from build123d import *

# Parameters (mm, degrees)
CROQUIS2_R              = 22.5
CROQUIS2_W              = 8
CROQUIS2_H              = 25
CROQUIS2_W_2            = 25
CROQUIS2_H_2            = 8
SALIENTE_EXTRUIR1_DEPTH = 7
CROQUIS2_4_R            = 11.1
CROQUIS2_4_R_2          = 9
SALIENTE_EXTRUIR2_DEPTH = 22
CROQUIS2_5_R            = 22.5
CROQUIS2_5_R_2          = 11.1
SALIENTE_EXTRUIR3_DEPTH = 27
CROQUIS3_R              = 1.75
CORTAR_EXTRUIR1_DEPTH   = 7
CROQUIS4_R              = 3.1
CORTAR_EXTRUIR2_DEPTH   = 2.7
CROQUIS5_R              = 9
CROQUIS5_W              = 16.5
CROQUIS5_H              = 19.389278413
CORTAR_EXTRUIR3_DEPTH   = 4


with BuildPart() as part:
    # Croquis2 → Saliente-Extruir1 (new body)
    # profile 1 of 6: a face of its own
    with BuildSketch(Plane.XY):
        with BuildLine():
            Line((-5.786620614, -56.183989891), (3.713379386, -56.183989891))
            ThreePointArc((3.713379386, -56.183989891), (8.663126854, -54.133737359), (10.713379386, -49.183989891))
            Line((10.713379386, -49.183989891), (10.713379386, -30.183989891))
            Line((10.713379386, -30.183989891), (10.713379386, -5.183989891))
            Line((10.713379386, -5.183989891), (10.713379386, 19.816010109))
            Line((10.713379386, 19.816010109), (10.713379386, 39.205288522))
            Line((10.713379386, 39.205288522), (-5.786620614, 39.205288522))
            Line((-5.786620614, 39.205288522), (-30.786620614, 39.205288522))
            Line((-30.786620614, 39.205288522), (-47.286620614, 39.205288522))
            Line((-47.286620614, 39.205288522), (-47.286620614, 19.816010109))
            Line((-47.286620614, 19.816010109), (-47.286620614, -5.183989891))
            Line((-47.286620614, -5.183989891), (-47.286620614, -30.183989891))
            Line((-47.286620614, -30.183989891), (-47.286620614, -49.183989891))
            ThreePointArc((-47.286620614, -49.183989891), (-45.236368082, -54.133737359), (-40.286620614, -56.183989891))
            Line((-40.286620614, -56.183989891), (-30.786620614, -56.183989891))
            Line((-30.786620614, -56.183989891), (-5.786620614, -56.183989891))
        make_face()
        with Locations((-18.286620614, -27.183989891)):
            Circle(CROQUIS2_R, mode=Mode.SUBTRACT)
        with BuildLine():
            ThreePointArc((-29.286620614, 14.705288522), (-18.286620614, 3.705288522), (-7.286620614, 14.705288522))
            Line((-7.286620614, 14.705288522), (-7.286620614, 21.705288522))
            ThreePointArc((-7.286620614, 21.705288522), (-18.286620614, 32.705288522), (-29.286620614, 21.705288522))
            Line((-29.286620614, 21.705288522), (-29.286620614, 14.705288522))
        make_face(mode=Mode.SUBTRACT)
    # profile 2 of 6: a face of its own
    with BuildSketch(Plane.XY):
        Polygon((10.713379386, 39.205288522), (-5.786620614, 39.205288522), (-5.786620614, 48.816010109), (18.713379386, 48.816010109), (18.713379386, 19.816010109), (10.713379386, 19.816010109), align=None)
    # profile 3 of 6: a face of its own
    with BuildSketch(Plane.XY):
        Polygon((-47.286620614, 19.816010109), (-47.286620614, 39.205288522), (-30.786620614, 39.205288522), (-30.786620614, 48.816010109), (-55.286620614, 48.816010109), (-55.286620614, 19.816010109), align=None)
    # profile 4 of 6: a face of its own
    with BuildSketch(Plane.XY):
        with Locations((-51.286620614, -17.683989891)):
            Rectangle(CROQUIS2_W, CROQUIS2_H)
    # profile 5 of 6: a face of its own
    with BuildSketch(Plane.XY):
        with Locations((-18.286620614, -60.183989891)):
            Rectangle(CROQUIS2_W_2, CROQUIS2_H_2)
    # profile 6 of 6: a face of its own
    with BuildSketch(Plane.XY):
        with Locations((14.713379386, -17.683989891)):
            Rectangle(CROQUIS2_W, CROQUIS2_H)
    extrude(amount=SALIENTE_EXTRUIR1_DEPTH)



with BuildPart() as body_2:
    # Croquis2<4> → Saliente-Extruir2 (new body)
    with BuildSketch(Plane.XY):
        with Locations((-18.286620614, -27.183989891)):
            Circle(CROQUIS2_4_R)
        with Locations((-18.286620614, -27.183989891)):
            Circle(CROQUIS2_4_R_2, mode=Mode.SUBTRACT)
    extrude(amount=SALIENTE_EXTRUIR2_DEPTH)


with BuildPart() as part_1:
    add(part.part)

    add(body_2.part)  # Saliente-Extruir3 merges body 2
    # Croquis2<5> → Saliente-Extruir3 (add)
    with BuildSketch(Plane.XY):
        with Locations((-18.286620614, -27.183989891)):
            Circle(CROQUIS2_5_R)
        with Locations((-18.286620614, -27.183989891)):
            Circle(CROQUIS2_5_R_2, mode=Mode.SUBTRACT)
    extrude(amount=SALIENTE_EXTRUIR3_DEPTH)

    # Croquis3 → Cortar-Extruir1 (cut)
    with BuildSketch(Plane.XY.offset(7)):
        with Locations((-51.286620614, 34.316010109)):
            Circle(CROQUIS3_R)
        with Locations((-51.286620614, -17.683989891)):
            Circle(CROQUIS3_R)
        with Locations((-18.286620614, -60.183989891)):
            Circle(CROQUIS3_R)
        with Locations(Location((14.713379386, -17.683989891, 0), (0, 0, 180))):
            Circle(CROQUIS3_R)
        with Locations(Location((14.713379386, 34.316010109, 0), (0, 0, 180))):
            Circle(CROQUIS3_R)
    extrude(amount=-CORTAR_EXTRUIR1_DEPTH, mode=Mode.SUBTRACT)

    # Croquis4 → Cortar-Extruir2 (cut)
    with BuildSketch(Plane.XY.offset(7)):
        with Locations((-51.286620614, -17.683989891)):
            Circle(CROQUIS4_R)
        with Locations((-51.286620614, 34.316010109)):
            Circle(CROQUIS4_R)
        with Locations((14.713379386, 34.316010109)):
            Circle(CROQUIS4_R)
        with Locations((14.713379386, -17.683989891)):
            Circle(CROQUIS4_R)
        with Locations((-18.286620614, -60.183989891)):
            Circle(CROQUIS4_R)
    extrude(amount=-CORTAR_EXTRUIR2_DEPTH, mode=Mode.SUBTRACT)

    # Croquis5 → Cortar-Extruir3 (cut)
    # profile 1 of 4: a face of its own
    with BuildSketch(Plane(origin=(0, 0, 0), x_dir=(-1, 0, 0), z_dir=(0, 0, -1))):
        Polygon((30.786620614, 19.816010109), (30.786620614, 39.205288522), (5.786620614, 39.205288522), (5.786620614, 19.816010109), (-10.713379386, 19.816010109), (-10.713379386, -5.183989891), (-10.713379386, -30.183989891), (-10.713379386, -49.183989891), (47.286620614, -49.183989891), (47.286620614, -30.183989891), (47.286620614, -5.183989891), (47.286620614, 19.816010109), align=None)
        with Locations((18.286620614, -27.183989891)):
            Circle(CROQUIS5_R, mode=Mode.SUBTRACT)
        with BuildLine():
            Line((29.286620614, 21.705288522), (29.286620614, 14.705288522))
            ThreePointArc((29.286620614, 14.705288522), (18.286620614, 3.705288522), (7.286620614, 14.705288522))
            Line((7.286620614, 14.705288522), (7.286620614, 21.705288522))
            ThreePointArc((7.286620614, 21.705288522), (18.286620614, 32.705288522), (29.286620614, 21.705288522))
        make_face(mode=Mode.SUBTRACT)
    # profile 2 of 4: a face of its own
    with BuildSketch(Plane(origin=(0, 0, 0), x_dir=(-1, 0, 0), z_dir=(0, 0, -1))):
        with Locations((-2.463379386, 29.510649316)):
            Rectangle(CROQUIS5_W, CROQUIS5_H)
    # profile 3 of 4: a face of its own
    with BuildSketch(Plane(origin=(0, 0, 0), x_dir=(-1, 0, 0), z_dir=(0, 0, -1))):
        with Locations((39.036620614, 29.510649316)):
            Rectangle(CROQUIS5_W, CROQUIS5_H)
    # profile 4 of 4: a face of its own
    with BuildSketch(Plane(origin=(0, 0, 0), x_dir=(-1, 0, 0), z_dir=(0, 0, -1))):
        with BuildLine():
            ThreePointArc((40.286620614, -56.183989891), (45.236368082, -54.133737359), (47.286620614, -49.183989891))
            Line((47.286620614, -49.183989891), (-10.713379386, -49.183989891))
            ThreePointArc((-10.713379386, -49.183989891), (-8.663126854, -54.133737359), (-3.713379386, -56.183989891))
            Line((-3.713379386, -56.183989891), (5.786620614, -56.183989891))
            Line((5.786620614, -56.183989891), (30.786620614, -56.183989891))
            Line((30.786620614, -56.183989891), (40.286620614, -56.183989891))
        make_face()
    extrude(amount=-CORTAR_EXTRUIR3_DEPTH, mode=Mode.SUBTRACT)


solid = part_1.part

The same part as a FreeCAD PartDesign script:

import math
import FreeCAD as App
import Part
import Sketcher
from FreeCAD import Vector

doc = App.newDocument("Part")
params = doc.addObject("Spreadsheet::Sheet", "Params")
for row, (alias, value) in enumerate([
    ("sketch1_diameter", "45 mm"),
    ("sketch1_radius", "7 mm"),
    ("sketch1_radius2", "11 mm"),
    ("sketch1_width", "8 mm"),
    ("sketch1_width2", "25 mm"),
    ("pad1_length", "7 mm"),
    ("sketch2_diameter", "18 mm"),
    ("sketch2_diameter2", "22.2 mm"),
    ("pad2_length", "22 mm"),
    ("sketch3_diameter", "45 mm"),
    ("sketch3_diameter2", "22.2 mm"),
    ("pad3_length", "27 mm"),
    ("sketch4_diameter", "3.5 mm"),
    ("pocket1_length", "7 mm"),
    ("sketch5_diameter", "6.2 mm"),
    ("pocket2_length", "2.7 mm"),
    ("sketch6_diameter", "18 mm"),
    ("sketch6_radius", "7 mm"),
    ("sketch6_radius2", "11 mm"),
    ("sketch6_width", "44 mm"),
    ("sketch6_height", "7 mm"),
    ("pocket3_length", "4 mm"),
], start=1):
    params.set(f"A{row}", alias)
    params.set(f"B{row}", "=" + value)
    params.setAlias(f"B{row}", alias)

body = doc.addObject("PartDesign::Body", "Body")

sketch1 = doc.addObject("Sketcher::SketchObject", "Sketch")
body.addObject(sketch1)
sketch1.AttachmentSupport = (doc.XY_Plane, [""])
sketch1.MapMode = "FlatFace"
sketch1.addGeometry([
    Part.ArcOfCircle(Part.Circle(Vector(4, -49, 0), Vector(0, 0, 1), 7), math.radians(-90), math.radians(0)),
    Part.LineSegment(Vector(11, -49, 0), Vector(11, -30, 0)),
    Part.LineSegment(Vector(11, -30, 0), Vector(19, -30, 0)),
    Part.LineSegment(Vector(19, -30, 0), Vector(19, -5, 0)),
    Part.LineSegment(Vector(19, -5, 0), Vector(11, -5, 0)),
    Part.LineSegment(Vector(11, -5, 0), Vector(11, 20, 0)),
    Part.LineSegment(Vector(11, 20, 0), Vector(19, 20, 0)),
    Part.LineSegment(Vector(19, 20, 0), Vector(19, 49, 0)),
    Part.LineSegment(Vector(19, 49, 0), Vector(-6, 49, 0)),
    Part.LineSegment(Vector(-6, 49, 0), Vector(-6, 39, 0)),
    Part.LineSegment(Vector(-6, 39, 0), Vector(-31, 39, 0)),
    Part.LineSegment(Vector(-31, 39, 0), Vector(-31, 49, 0)),
    Part.LineSegment(Vector(-31, 49, 0), Vector(-55, 49, 0)),
    Part.LineSegment(Vector(-55, 49, 0), Vector(-55, 20, 0)),
    Part.LineSegment(Vector(-55, 20, 0), Vector(-47, 20, 0)),
    Part.LineSegment(Vector(-47, 20, 0), Vector(-47, -5, 0)),
    Part.LineSegment(Vector(-47, -5, 0), Vector(-55, -5, 0)),
    Part.LineSegment(Vector(-55, -5, 0), Vector(-55, -30, 0)),
    Part.LineSegment(Vector(-55, -30, 0), Vector(-47, -30, 0)),
    Part.LineSegment(Vector(-47, -30, 0), Vector(-47, -49, 0)),
    Part.ArcOfCircle(Part.Circle(Vector(-40, -49, 0), Vector(0, 0, 1), 7), math.radians(-180), math.radians(-90)),
    Part.LineSegment(Vector(-40, -56, 0), Vector(-31, -56, 0)),
    Part.LineSegment(Vector(-31, -56, 0), Vector(-31, -64, 0)),
    Part.LineSegment(Vector(-31, -64, 0), Vector(-6, -64, 0)),
    Part.LineSegment(Vector(-6, -64, 0), Vector(-6, -56, 0)),
    Part.LineSegment(Vector(-6, -56, 0), Vector(4, -56, 0)),
    Part.Circle(Vector(-18, -27, 0), Vector(0, 0, 1), 22),
    Part.ArcOfCircle(Part.Circle(Vector(-18, 15, 0), Vector(0, 0, 1), 11), math.radians(180), math.radians(360)),
    Part.LineSegment(Vector(-29, 15, 0), Vector(-29, 22, 0)),
    Part.ArcOfCircle(Part.Circle(Vector(-18, 22, 0), Vector(0, 0, 1), 11), math.radians(0), math.radians(180)),
    Part.LineSegment(Vector(-7, 22, 0), Vector(-7, 15, 0)),
], False)
sketch1.addConstraint([
    Sketcher.Constraint("Tangent", 0, 2, 1, 1),
    Sketcher.Constraint("Coincident", 1, 2, 2, 1),
    Sketcher.Constraint("Coincident", 2, 2, 3, 1),
    Sketcher.Constraint("Coincident", 3, 2, 4, 1),
    Sketcher.Constraint("Coincident", 4, 2, 5, 1),
    Sketcher.Constraint("Coincident", 5, 2, 6, 1),
    Sketcher.Constraint("Coincident", 6, 2, 7, 1),
    Sketcher.Constraint("Coincident", 7, 2, 8, 1),
    Sketcher.Constraint("Coincident", 8, 2, 9, 1),
    Sketcher.Constraint("Coincident", 9, 2, 10, 1),
    Sketcher.Constraint("Coincident", 10, 2, 11, 1),
    Sketcher.Constraint("Coincident", 11, 2, 12, 1),
    Sketcher.Constraint("Coincident", 12, 2, 13, 1),
    Sketcher.Constraint("Coincident", 13, 2, 14, 1),
    Sketcher.Constraint("Coincident", 14, 2, 15, 1),
    Sketcher.Constraint("Coincident", 15, 2, 16, 1),
    Sketcher.Constraint("Coincident", 16, 2, 17, 1),
    Sketcher.Constraint("Coincident", 17, 2, 18, 1),
    Sketcher.Constraint("Coincident", 18, 2, 19, 1),
    Sketcher.Constraint("Tangent", 19, 2, 20, 1),
    Sketcher.Constraint("Tangent", 20, 2, 21, 1),
    Sketcher.Constraint("Coincident", 21, 2, 22, 1),
    Sketcher.Constraint("Coincident", 22, 2, 23, 1),
    Sketcher.Constraint("Coincident", 23, 2, 24, 1),
    Sketcher.Constraint("Coincident", 24, 2, 25, 1),
    Sketcher.Constraint("Tangent", 25, 2, 0, 1),
    Sketcher.Constraint("Tangent", 27, 1, 28, 1),
    Sketcher.Constraint("Tangent", 28, 2, 29, 2),
    Sketcher.Constraint("Tangent", 29, 1, 30, 1),
    Sketcher.Constraint("Tangent", 30, 2, 27, 2),
    Sketcher.Constraint("Vertical", 1),
    Sketcher.Constraint("Horizontal", 2),
    Sketcher.Constraint("Vertical", 3),
    Sketcher.Constraint("Horizontal", 4),
    Sketcher.Constraint("Vertical", 5),
    Sketcher.Constraint("Horizontal", 6),
    Sketcher.Constraint("Vertical", 7),
    Sketcher.Constraint("Horizontal", 8),
    Sketcher.Constraint("Vertical", 9),
    Sketcher.Constraint("Horizontal", 10),
    Sketcher.Constraint("Vertical", 11),
    Sketcher.Constraint("Horizontal", 12),
    Sketcher.Constraint("Vertical", 13),
    Sketcher.Constraint("Horizontal", 14),
    Sketcher.Constraint("Vertical", 15),
    Sketcher.Constraint("Horizontal", 16),
    Sketcher.Constraint("Vertical", 17),
    Sketcher.Constraint("Horizontal", 18),
    Sketcher.Constraint("Vertical", 19),
    Sketcher.Constraint("Horizontal", 21),
    Sketcher.Constraint("Vertical", 22),
    Sketcher.Constraint("Horizontal", 23),
    Sketcher.Constraint("Vertical", 24),
    Sketcher.Constraint("Horizontal", 25),
    Sketcher.Constraint("Vertical", 28),
    Sketcher.Constraint("Vertical", 30),
    Sketcher.Constraint("Equal", 0, 20),
    Sketcher.Constraint("Horizontal", 0, 3, 20, 3),
    Sketcher.Constraint("Horizontal", 8, 2, 11, 2),
    Sketcher.Constraint("Horizontal", 6, 2, 13, 2),
    Sketcher.Constraint("Horizontal", 4, 2, 15, 2),
    Sketcher.Constraint("Horizontal", 2, 2, 17, 2),
    Sketcher.Constraint("Vertical", 26, 3, 27, 3),
    Sketcher.Constraint("Vertical", 1, 2, 4, 2),
    Sketcher.Constraint("Vertical", 3, 2, 6, 2),
    Sketcher.Constraint("Vertical", 13, 2, 16, 2),
    Sketcher.Constraint("Vertical", 15, 2, 18, 2),
    Sketcher.Constraint("Vertical", 11, 2, 21, 2),
    Sketcher.Constraint("Vertical", 9, 2, 23, 2),
    Sketcher.Constraint("Equal", 8, 12),
    Sketcher.Constraint("Equal", 6, 14),
    Sketcher.Constraint("Equal", 23, 3),
    Sketcher.Constraint("Equal", 3, 5),
    Sketcher.Constraint("Equal", 18, 22),
    Sketcher.Constraint("Diameter", 26, 45.0),
    Sketcher.Constraint("Radius", 0, 7.0),
    Sketcher.Constraint("Radius", 27, 11.0),
    Sketcher.Constraint("DistanceX", 2, 1, 2, 2, 8.0),
    Sketcher.Constraint("DistanceX", 10, 2, 10, 1, 25.0),
    Sketcher.Constraint("DistanceY", 1, 1, 1, 2, 19.0),
    Sketcher.Constraint("DistanceY", 7, 1, 7, 2, 29.0),
    Sketcher.Constraint("DistanceY", 28, 1, 28, 2, 7.0),
    Sketcher.Constraint("DistanceX", 8, 2, 8, 1, 24.5),
    Sketcher.Constraint("DistanceX", 26, 3, 0, 3, 22.0),
    Sketcher.Constraint("DistanceY", 0, 3, 26, 3, 22.0),
    Sketcher.Constraint("DistanceY", 29, 3, 9, 2, 17.5),
    Sketcher.Constraint("DistanceY", 9, 2, 9, 1, 9.610722),
    Sketcher.Constraint("DistanceX", -1, 1, 0, 3, 3.713379),
    Sketcher.Constraint("DistanceY", 0, 3, -1, 1, 49.18399),
])
sketch1.setExpression("Constraints[74]", "Params.sketch1_diameter")
sketch1.setExpression("Constraints[75]", "Params.sketch1_radius")
sketch1.setExpression("Constraints[76]", "Params.sketch1_radius2")
sketch1.setExpression("Constraints[77]", "Params.sketch1_width")
sketch1.setExpression("Constraints[78]", "Params.sketch1_width2")
pad1 = doc.addObject("PartDesign::Pad", "Pad")
body.addObject(pad1)
pad1.Profile = sketch1
pad1.setExpression("Length", "Params.pad1_length")
body2 = doc.addObject("PartDesign::Body", "Body001")

sketch2 = doc.addObject("Sketcher::SketchObject", "Sketch001")
body2.addObject(sketch2)
sketch2.AttachmentSupport = (doc.getObject("XY_Plane001"), [""])
sketch2.MapMode = "FlatFace"
sketch2.addGeometry([
    Part.Circle(Vector(-18, -27, 0), Vector(0, 0, 1), 11),
    Part.Circle(Vector(-18, -27, 0), Vector(0, 0, 1), 9),
], False)
sketch2.addConstraint([
    Sketcher.Constraint("Coincident", 1, 3, 0, 3),
    Sketcher.Constraint("Diameter", 1, 18.0),
    Sketcher.Constraint("Diameter", 0, 22.2),
    Sketcher.Constraint("DistanceX", 0, 3, -1, 1, 18.286621),
    Sketcher.Constraint("DistanceY", 0, 3, -1, 1, 27.18399),
])
sketch2.setExpression("Constraints[1]", "Params.sketch2_diameter")
sketch2.setExpression("Constraints[2]", "Params.sketch2_diameter2")
pad2 = doc.addObject("PartDesign::Pad", "Pad001")
body2.addObject(pad2)
pad2.Profile = sketch2
pad2.setExpression("Length", "Params.pad2_length")
body.AllowCompound = True
doc.recompute()

boolean = doc.addObject("PartDesign::Boolean", "Boolean")
body.addObject(boolean)
boolean.Type = "Fuse"
boolean.addObjects([body2])

sketch3 = doc.addObject("Sketcher::SketchObject", "Sketch002")
body.addObject(sketch3)
sketch3.AttachmentSupport = (doc.XY_Plane, [""])
sketch3.MapMode = "FlatFace"
sketch3.addGeometry([
    Part.Circle(Vector(-18, -27, 0), Vector(0, 0, 1), 22),
    Part.Circle(Vector(-18, -27, 0), Vector(0, 0, 1), 11),
], False)
sketch3.addConstraint([
    Sketcher.Constraint("Coincident", 1, 3, 0, 3),
    Sketcher.Constraint("Diameter", 0, 45.0),
    Sketcher.Constraint("Diameter", 1, 22.2),
    Sketcher.Constraint("DistanceX", 0, 3, -1, 1, 18.286621),
    Sketcher.Constraint("DistanceY", 0, 3, -1, 1, 27.18399),
])
sketch3.setExpression("Constraints[1]", "Params.sketch3_diameter")
sketch3.setExpression("Constraints[2]", "Params.sketch3_diameter2")
pad3 = doc.addObject("PartDesign::Pad", "Pad002")
body.addObject(pad3)
pad3.Profile = sketch3
pad3.setExpression("Length", "Params.pad3_length")

sketch4 = doc.addObject("Sketcher::SketchObject", "Sketch003")
body.addObject(sketch4)
sketch4.AttachmentSupport = (doc.XY_Plane, [""])
sketch4.MapMode = "FlatFace"
sketch4.AttachmentOffset = App.Placement(Vector(0, 0, 7), App.Rotation())
sketch4.addGeometry([
    Part.Circle(Vector(-51.3, 34.3, 0), Vector(0, 0, 1), 1.8),
    Part.Circle(Vector(-51.3, -17.7, 0), Vector(0, 0, 1), 1.8),
    Part.Circle(Vector(-18.3, -60.2, 0), Vector(0, 0, 1), 1.8),
    Part.Circle(Vector(14.7, -17.7, 0), Vector(0, 0, 1), 1.8),
    Part.Circle(Vector(14.7, 34.3, 0), Vector(0, 0, 1), 1.8),
], False)
sketch4.addConstraint([
    Sketcher.Constraint("Equal", 0, 1),
    Sketcher.Constraint("Equal", 1, 2),
    Sketcher.Constraint("Equal", 2, 3),
    Sketcher.Constraint("Equal", 3, 4),
    Sketcher.Constraint("Horizontal", 1, 3, 3, 3),
    Sketcher.Constraint("Horizontal", 0, 3, 4, 3),
    Sketcher.Constraint("Vertical", 0, 3, 1, 3),
    Sketcher.Constraint("Vertical", 3, 3, 4, 3),
    Sketcher.Constraint("Diameter", 0, 3.5),
    Sketcher.Constraint("DistanceY", 1, 3, 0, 3, 52.0),
    Sketcher.Constraint("DistanceX", 1, 3, 2, 3, 33.0),
    Sketcher.Constraint("DistanceX", 2, 3, 3, 3, 33.0),
    Sketcher.Constraint("DistanceY", 2, 3, 1, 3, 42.5),
    Sketcher.Constraint("DistanceX", 0, 3, -1, 1, 51.286621),
    Sketcher.Constraint("DistanceY", -1, 1, 0, 3, 34.31601),
])
sketch4.setExpression("Constraints[8]", "Params.sketch4_diameter")
pocket1 = doc.addObject("PartDesign::Pocket", "Pocket")
body.addObject(pocket1)
pocket1.Profile = sketch4
pocket1.setExpression("Length", "Params.pocket1_length")

sketch5 = doc.addObject("Sketcher::SketchObject", "Sketch004")
body.addObject(sketch5)
sketch5.AttachmentSupport = (doc.XY_Plane, [""])
sketch5.MapMode = "FlatFace"
sketch5.AttachmentOffset = App.Placement(Vector(0, 0, 7), App.Rotation())
sketch5.addGeometry([
    Part.Circle(Vector(-51.3, -17.7, 0), Vector(0, 0, 1), 3.1),
    Part.Circle(Vector(-51.3, 34.3, 0), Vector(0, 0, 1), 3.1),
    Part.Circle(Vector(14.7, 34.3, 0), Vector(0, 0, 1), 3.1),
    Part.Circle(Vector(14.7, -17.7, 0), Vector(0, 0, 1), 3.1),
    Part.Circle(Vector(-18.3, -60.2, 0), Vector(0, 0, 1), 3.1),
], False)
sketch5.addConstraint([
    Sketcher.Constraint("Equal", 0, 1),
    Sketcher.Constraint("Equal", 1, 2),
    Sketcher.Constraint("Equal", 2, 3),
    Sketcher.Constraint("Equal", 3, 4),
    Sketcher.Constraint("Horizontal", 1, 3, 2, 3),
    Sketcher.Constraint("Horizontal", 0, 3, 3, 3),
    Sketcher.Constraint("Vertical", 0, 3, 1, 3),
    Sketcher.Constraint("Vertical", 2, 3, 3, 3),
    Sketcher.Constraint("Diameter", 0, 6.2),
    Sketcher.Constraint("DistanceY", 0, 3, 1, 3, 52.0),
    Sketcher.Constraint("DistanceX", 1, 3, 2, 3, 66.0),
    Sketcher.Constraint("DistanceX", 0, 3, 4, 3, 33.0),
    Sketcher.Constraint("DistanceY", 4, 3, 0, 3, 42.5),
    Sketcher.Constraint("DistanceX", 0, 3, -1, 1, 51.286621),
    Sketcher.Constraint("DistanceY", 0, 3, -1, 1, 17.68399),
])
sketch5.setExpression("Constraints[8]", "Params.sketch5_diameter")
pocket2 = doc.addObject("PartDesign::Pocket", "Pocket001")
body.addObject(pocket2)
pocket2.Profile = sketch5
pocket2.setExpression("Length", "Params.pocket2_length")

sketch6 = doc.addObject("Sketcher::SketchObject", "Sketch005")
body.addObject(sketch6)
sketch6.AttachmentSupport = (doc.XY_Plane, [""])
sketch6.MapMode = "FlatFace"
sketch6.addGeometry([
    Part.LineSegment(Vector(-31, 39, 0), Vector(11, 39, 0)),
    Part.LineSegment(Vector(11, 39, 0), Vector(11, -49, 0)),
    Part.ArcOfCircle(Part.Circle(Vector(4, -49, 0), Vector(0, 0, 1), 7), math.radians(-90), math.radians(0)),
    Part.LineSegment(Vector(4, -56, 0), Vector(-40, -56, 0)),
    Part.ArcOfCircle(Part.Circle(Vector(-40, -49, 0), Vector(0, 0, 1), 7), math.radians(-180), math.radians(-90)),
    Part.LineSegment(Vector(-47, -49, 0), Vector(-47, 39, 0)),
    Part.LineSegment(Vector(-47, 39, 0), Vector(-31, 39, 0)),
    Part.Circle(Vector(-18, -27, 0), Vector(0, 0, 1), 9),
    Part.ArcOfCircle(Part.Circle(Vector(-18, 22, 0), Vector(0, 0, 1), 11), math.radians(0), math.radians(180)),
    Part.LineSegment(Vector(-29, 22, 0), Vector(-29, 15, 0)),
    Part.ArcOfCircle(Part.Circle(Vector(-18, 15, 0), Vector(0, 0, 1), 11), math.radians(180), math.radians(360)),
    Part.LineSegment(Vector(-7, 15, 0), Vector(-7, 22, 0)),
], False)
sketch6.addConstraint([
    Sketcher.Constraint("Coincident", 0, 2, 1, 1),
    Sketcher.Constraint("Tangent", 1, 2, 2, 2),
    Sketcher.Constraint("Tangent", 2, 1, 3, 1),
    Sketcher.Constraint("Tangent", 3, 2, 4, 2),
    Sketcher.Constraint("Tangent", 4, 1, 5, 1),
    Sketcher.Constraint("Coincident", 5, 2, 6, 1),
    Sketcher.Constraint("Coincident", 6, 2, 0, 1),
    Sketcher.Constraint("Tangent", 8, 2, 9, 1),
    Sketcher.Constraint("Tangent", 9, 2, 10, 1),
    Sketcher.Constraint("Tangent", 10, 2, 11, 1),
    Sketcher.Constraint("Tangent", 11, 2, 8, 1),
    Sketcher.Constraint("Horizontal", 0),
    Sketcher.Constraint("Vertical", 1),
    Sketcher.Constraint("Horizontal", 3),
    Sketcher.Constraint("Vertical", 5),
    Sketcher.Constraint("Horizontal", 6),
    Sketcher.Constraint("Vertical", 9),
    Sketcher.Constraint("Vertical", 11),
    Sketcher.Constraint("Equal", 2, 4),
    Sketcher.Constraint("Vertical", 7, 3, 8, 3),
    Sketcher.Constraint("Diameter", 7, 18.0),
    Sketcher.Constraint("Radius", 2, 7.0),
    Sketcher.Constraint("Radius", 8, 11.0),
    Sketcher.Constraint("DistanceX", 3, 2, 3, 1, 44.0),
    Sketcher.Constraint("DistanceY", 9, 2, 9, 1, 7.0),
    Sketcher.Constraint("DistanceX", 0, 1, 0, 2, 41.5),
    Sketcher.Constraint("DistanceX", 7, 3, 2, 3, 22.0),
    Sketcher.Constraint("DistanceY", 2, 3, 7, 3, 22.0),
    Sketcher.Constraint("DistanceY", 8, 3, 0, 2, 17.5),
    Sketcher.Constraint("DistanceY", 1, 2, 1, 1, 88.389278),
    Sketcher.Constraint("DistanceX", -1, 1, 2, 3, 3.713379),
    Sketcher.Constraint("DistanceY", 2, 3, -1, 1, 49.18399),
])
sketch6.setExpression("Constraints[20]", "Params.sketch6_diameter")
sketch6.setExpression("Constraints[21]", "Params.sketch6_radius")
sketch6.setExpression("Constraints[22]", "Params.sketch6_radius2")
sketch6.setExpression("Constraints[23]", "Params.sketch6_width")
sketch6.setExpression("Constraints[24]", "Params.sketch6_height")
pocket3 = doc.addObject("PartDesign::Pocket", "Pocket002")
body.addObject(pocket3)
pocket3.Profile = sketch6
pocket3.setExpression("Length", "Params.pocket3_length")
pocket3.Reversed = True

doc.recompute()
